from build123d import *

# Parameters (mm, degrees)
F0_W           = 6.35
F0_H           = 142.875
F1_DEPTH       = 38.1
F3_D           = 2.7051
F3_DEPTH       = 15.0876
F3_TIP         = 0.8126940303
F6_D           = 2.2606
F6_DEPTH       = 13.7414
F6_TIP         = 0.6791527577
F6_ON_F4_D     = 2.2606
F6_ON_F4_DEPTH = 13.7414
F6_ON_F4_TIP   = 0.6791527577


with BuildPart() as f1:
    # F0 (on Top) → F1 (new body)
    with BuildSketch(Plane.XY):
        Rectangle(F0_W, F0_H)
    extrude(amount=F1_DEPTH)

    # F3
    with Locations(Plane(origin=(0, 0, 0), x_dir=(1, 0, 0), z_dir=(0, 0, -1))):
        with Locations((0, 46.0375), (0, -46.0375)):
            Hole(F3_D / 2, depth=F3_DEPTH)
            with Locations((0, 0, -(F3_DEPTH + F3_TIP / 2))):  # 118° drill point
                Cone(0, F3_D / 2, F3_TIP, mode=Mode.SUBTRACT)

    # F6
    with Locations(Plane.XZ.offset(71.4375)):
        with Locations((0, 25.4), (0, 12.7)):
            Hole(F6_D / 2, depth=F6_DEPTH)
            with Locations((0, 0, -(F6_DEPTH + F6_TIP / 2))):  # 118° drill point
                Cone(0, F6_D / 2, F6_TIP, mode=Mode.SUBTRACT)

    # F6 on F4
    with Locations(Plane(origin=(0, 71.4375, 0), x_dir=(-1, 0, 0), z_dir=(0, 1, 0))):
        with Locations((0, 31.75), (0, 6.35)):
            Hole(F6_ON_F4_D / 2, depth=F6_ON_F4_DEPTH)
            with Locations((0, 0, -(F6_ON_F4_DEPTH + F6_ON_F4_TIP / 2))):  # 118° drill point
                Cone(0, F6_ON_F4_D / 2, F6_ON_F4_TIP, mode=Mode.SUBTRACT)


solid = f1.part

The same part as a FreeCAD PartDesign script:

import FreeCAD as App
import Part
import Sketcher

V = App.Vector
Q = App.Units.Quantity

doc = App.newDocument("Part")
body = doc.addObject("PartDesign::Body", "Body")

sketch1 = body.newObject("Sketcher::SketchObject", "Sketch")
sketch1.AttachmentSupport = (doc.getObject("XY_Plane"), [""])
sketch1.MapMode = "FlatFace"
sketch1.addGeometry([
    Part.LineSegment(V(-3.175, 71.4375, 0), V(-3.175, -71.4375, 0)),
    Part.LineSegment(V(-3.175, -71.4375, 0), V(3.175, -71.4375, 0)),
    Part.LineSegment(V(3.175, -71.4375, 0), V(3.175, 71.4375, 0)),
    Part.LineSegment(V(3.175, 71.4375, 0), V(-3.175, 71.4375, 0)),
], False)
sketch1.addConstraint([
    Sketcher.Constraint("Coincident", 0, 2, 1, 1),
    Sketcher.Constraint("Coincident", 1, 2, 2, 1),
    Sketcher.Constraint("Coincident", 2, 2, 3, 1),
    Sketcher.Constraint("Coincident", 3, 2, 0, 1),
    Sketcher.Constraint("Vertical", 0),
    Sketcher.Constraint("Horizontal", 1),
    Sketcher.Constraint("Vertical", 2),
    Sketcher.Constraint("Horizontal", 3),
    Sketcher.Constraint("Symmetric", 0, 2, 2, 2, -1, 1),
    Sketcher.Constraint("DistanceX", 1, 1, 1, 2, Q("0.25 in")),
    Sketcher.Constraint("DistanceY", 0, 2, 0, 1, Q("5.625 in")),
])
pad1 = body.newObject("PartDesign::Pad", "Pad")
pad1.Profile = sketch1
pad1.Length = Q("1.5 in")

sketch2 = body.newObject("Sketcher::SketchObject", "Sketch001")
sketch2.AttachmentSupport = (doc.getObject("XY_Plane"), [""])
sketch2.MapMode = "FlatFace"
sketch2.addGeometry([
    Part.Circle(V(0, -46.0375, 0), V(0, 0, 1), 1.35255),
    Part.Circle(V(0, 46.0375, 0), V(0, 0, 1), 1.35255),
], False)
sketch2.addConstraint([
    Sketcher.Constraint("Equal", 0, 1),
    Sketcher.Constraint("Symmetric", 0, 3, 1, 3, -1, 1),
    Sketcher.Constraint("PointOnObject", 0, 3, -2),
    Sketcher.Constraint("Diameter", 0, Q("0.1065 in")),
    Sketcher.Constraint("DistanceY", 0, 3, -1, 1, Q("1.8125 in")),
])
doc.recompute()
hole = body.newObject("PartDesign::Hole", "Hole")
hole.Profile = sketch2
hole.ThreadType = "None"
hole.Diameter = Q("0.1065 in")
hole.DepthType = "Dimension"
hole.Depth = Q("0.594 in")
hole.DrillPoint = "Angled"
hole.DrillPointAngle = 118
hole.Reversed = True

sketch3 = body.newObject("Sketcher::SketchObject", "Sketch002")
sketch3.AttachmentSupport = (doc.getObject("XZ_Plane"), [""])
sketch3.MapMode = "FlatFace"
sketch3.AttachmentOffset = App.Placement(V(0, 0, 2.8125 * 25.4), App.Rotation())
sketch3.addGeometry([
    Part.Circle(V(0, 25.4, 0), V(0, 0, 1), 1.1303),
    Part.Circle(V(0, 12.7, 0), V(0, 0, 1), 1.1303),
], False)
sketch3.addConstraint([
    Sketcher.Constraint("Equal", 0, 1),
    Sketcher.Constraint("PointOnObject", 0, 3, -2),
    Sketcher.Constraint("PointOnObject", 1, 3, -2),
    Sketcher.Constraint("Diameter", 0, Q("0.089 in")),
    Sketcher.Constraint("DistanceY", -1, 1, 0, 3, Q("1 in")),
    Sketcher.Constraint("DistanceY", -1, 1, 1, 3, Q("0.5 in")),
])
doc.recompute()
hole2 = body.newObject("PartDesign::Hole", "Hole001")
hole2.Profile = sketch3
hole2.ThreadType = "None"
hole2.Diameter = Q("0.089 in")
hole2.DepthType = "Dimension"
hole2.Depth = Q("0.541 in")
hole2.DrillPoint = "Angled"
hole2.DrillPointAngle = 118

sketch4 = body.newObject("Sketcher::SketchObject", "Sketch003")
sketch4.AttachmentSupport = (doc.getObject("XZ_Plane"), [""])
sketch4.MapMode = "FlatFace"
sketch4.AttachmentOffset = App.Placement(V(0, 0, -2.8125 * 25.4), App.Rotation())
sketch4.addGeometry([
    Part.Circle(V(0, 31.75, 0), V(0, 0, 1), 1.1303),
    Part.Circle(V(0, 6.35, 0), V(0, 0, 1), 1.1303),
], False)
sketch4.addConstraint([
    Sketcher.Constraint("Equal", 0, 1),
    Sketcher.Constraint("PointOnObject", 0, 3, -2),
    Sketcher.Constraint("PointOnObject", 1, 3, -2),
    Sketcher.Constraint("Diameter", 0, Q("0.089 in")),
    Sketcher.Constraint("DistanceY", 1, 3, 0, 3, Q("1 in")),
    Sketcher.Constraint("DistanceY", -1, 1, 0, 3, Q("1.25 in")),
])
doc.recompute()
hole3 = body.newObject("PartDesign::Hole", "Hole002")
hole3.Profile = sketch4
hole3.ThreadType = "None"
hole3.Diameter = Q("0.089 in")
hole3.DepthType = "Dimension"
hole3.Depth = Q("0.541 in")
hole3.DrillPoint = "Angled"
hole3.DrillPointAngle = 118
hole3.Reversed = True

doc.recompute()
